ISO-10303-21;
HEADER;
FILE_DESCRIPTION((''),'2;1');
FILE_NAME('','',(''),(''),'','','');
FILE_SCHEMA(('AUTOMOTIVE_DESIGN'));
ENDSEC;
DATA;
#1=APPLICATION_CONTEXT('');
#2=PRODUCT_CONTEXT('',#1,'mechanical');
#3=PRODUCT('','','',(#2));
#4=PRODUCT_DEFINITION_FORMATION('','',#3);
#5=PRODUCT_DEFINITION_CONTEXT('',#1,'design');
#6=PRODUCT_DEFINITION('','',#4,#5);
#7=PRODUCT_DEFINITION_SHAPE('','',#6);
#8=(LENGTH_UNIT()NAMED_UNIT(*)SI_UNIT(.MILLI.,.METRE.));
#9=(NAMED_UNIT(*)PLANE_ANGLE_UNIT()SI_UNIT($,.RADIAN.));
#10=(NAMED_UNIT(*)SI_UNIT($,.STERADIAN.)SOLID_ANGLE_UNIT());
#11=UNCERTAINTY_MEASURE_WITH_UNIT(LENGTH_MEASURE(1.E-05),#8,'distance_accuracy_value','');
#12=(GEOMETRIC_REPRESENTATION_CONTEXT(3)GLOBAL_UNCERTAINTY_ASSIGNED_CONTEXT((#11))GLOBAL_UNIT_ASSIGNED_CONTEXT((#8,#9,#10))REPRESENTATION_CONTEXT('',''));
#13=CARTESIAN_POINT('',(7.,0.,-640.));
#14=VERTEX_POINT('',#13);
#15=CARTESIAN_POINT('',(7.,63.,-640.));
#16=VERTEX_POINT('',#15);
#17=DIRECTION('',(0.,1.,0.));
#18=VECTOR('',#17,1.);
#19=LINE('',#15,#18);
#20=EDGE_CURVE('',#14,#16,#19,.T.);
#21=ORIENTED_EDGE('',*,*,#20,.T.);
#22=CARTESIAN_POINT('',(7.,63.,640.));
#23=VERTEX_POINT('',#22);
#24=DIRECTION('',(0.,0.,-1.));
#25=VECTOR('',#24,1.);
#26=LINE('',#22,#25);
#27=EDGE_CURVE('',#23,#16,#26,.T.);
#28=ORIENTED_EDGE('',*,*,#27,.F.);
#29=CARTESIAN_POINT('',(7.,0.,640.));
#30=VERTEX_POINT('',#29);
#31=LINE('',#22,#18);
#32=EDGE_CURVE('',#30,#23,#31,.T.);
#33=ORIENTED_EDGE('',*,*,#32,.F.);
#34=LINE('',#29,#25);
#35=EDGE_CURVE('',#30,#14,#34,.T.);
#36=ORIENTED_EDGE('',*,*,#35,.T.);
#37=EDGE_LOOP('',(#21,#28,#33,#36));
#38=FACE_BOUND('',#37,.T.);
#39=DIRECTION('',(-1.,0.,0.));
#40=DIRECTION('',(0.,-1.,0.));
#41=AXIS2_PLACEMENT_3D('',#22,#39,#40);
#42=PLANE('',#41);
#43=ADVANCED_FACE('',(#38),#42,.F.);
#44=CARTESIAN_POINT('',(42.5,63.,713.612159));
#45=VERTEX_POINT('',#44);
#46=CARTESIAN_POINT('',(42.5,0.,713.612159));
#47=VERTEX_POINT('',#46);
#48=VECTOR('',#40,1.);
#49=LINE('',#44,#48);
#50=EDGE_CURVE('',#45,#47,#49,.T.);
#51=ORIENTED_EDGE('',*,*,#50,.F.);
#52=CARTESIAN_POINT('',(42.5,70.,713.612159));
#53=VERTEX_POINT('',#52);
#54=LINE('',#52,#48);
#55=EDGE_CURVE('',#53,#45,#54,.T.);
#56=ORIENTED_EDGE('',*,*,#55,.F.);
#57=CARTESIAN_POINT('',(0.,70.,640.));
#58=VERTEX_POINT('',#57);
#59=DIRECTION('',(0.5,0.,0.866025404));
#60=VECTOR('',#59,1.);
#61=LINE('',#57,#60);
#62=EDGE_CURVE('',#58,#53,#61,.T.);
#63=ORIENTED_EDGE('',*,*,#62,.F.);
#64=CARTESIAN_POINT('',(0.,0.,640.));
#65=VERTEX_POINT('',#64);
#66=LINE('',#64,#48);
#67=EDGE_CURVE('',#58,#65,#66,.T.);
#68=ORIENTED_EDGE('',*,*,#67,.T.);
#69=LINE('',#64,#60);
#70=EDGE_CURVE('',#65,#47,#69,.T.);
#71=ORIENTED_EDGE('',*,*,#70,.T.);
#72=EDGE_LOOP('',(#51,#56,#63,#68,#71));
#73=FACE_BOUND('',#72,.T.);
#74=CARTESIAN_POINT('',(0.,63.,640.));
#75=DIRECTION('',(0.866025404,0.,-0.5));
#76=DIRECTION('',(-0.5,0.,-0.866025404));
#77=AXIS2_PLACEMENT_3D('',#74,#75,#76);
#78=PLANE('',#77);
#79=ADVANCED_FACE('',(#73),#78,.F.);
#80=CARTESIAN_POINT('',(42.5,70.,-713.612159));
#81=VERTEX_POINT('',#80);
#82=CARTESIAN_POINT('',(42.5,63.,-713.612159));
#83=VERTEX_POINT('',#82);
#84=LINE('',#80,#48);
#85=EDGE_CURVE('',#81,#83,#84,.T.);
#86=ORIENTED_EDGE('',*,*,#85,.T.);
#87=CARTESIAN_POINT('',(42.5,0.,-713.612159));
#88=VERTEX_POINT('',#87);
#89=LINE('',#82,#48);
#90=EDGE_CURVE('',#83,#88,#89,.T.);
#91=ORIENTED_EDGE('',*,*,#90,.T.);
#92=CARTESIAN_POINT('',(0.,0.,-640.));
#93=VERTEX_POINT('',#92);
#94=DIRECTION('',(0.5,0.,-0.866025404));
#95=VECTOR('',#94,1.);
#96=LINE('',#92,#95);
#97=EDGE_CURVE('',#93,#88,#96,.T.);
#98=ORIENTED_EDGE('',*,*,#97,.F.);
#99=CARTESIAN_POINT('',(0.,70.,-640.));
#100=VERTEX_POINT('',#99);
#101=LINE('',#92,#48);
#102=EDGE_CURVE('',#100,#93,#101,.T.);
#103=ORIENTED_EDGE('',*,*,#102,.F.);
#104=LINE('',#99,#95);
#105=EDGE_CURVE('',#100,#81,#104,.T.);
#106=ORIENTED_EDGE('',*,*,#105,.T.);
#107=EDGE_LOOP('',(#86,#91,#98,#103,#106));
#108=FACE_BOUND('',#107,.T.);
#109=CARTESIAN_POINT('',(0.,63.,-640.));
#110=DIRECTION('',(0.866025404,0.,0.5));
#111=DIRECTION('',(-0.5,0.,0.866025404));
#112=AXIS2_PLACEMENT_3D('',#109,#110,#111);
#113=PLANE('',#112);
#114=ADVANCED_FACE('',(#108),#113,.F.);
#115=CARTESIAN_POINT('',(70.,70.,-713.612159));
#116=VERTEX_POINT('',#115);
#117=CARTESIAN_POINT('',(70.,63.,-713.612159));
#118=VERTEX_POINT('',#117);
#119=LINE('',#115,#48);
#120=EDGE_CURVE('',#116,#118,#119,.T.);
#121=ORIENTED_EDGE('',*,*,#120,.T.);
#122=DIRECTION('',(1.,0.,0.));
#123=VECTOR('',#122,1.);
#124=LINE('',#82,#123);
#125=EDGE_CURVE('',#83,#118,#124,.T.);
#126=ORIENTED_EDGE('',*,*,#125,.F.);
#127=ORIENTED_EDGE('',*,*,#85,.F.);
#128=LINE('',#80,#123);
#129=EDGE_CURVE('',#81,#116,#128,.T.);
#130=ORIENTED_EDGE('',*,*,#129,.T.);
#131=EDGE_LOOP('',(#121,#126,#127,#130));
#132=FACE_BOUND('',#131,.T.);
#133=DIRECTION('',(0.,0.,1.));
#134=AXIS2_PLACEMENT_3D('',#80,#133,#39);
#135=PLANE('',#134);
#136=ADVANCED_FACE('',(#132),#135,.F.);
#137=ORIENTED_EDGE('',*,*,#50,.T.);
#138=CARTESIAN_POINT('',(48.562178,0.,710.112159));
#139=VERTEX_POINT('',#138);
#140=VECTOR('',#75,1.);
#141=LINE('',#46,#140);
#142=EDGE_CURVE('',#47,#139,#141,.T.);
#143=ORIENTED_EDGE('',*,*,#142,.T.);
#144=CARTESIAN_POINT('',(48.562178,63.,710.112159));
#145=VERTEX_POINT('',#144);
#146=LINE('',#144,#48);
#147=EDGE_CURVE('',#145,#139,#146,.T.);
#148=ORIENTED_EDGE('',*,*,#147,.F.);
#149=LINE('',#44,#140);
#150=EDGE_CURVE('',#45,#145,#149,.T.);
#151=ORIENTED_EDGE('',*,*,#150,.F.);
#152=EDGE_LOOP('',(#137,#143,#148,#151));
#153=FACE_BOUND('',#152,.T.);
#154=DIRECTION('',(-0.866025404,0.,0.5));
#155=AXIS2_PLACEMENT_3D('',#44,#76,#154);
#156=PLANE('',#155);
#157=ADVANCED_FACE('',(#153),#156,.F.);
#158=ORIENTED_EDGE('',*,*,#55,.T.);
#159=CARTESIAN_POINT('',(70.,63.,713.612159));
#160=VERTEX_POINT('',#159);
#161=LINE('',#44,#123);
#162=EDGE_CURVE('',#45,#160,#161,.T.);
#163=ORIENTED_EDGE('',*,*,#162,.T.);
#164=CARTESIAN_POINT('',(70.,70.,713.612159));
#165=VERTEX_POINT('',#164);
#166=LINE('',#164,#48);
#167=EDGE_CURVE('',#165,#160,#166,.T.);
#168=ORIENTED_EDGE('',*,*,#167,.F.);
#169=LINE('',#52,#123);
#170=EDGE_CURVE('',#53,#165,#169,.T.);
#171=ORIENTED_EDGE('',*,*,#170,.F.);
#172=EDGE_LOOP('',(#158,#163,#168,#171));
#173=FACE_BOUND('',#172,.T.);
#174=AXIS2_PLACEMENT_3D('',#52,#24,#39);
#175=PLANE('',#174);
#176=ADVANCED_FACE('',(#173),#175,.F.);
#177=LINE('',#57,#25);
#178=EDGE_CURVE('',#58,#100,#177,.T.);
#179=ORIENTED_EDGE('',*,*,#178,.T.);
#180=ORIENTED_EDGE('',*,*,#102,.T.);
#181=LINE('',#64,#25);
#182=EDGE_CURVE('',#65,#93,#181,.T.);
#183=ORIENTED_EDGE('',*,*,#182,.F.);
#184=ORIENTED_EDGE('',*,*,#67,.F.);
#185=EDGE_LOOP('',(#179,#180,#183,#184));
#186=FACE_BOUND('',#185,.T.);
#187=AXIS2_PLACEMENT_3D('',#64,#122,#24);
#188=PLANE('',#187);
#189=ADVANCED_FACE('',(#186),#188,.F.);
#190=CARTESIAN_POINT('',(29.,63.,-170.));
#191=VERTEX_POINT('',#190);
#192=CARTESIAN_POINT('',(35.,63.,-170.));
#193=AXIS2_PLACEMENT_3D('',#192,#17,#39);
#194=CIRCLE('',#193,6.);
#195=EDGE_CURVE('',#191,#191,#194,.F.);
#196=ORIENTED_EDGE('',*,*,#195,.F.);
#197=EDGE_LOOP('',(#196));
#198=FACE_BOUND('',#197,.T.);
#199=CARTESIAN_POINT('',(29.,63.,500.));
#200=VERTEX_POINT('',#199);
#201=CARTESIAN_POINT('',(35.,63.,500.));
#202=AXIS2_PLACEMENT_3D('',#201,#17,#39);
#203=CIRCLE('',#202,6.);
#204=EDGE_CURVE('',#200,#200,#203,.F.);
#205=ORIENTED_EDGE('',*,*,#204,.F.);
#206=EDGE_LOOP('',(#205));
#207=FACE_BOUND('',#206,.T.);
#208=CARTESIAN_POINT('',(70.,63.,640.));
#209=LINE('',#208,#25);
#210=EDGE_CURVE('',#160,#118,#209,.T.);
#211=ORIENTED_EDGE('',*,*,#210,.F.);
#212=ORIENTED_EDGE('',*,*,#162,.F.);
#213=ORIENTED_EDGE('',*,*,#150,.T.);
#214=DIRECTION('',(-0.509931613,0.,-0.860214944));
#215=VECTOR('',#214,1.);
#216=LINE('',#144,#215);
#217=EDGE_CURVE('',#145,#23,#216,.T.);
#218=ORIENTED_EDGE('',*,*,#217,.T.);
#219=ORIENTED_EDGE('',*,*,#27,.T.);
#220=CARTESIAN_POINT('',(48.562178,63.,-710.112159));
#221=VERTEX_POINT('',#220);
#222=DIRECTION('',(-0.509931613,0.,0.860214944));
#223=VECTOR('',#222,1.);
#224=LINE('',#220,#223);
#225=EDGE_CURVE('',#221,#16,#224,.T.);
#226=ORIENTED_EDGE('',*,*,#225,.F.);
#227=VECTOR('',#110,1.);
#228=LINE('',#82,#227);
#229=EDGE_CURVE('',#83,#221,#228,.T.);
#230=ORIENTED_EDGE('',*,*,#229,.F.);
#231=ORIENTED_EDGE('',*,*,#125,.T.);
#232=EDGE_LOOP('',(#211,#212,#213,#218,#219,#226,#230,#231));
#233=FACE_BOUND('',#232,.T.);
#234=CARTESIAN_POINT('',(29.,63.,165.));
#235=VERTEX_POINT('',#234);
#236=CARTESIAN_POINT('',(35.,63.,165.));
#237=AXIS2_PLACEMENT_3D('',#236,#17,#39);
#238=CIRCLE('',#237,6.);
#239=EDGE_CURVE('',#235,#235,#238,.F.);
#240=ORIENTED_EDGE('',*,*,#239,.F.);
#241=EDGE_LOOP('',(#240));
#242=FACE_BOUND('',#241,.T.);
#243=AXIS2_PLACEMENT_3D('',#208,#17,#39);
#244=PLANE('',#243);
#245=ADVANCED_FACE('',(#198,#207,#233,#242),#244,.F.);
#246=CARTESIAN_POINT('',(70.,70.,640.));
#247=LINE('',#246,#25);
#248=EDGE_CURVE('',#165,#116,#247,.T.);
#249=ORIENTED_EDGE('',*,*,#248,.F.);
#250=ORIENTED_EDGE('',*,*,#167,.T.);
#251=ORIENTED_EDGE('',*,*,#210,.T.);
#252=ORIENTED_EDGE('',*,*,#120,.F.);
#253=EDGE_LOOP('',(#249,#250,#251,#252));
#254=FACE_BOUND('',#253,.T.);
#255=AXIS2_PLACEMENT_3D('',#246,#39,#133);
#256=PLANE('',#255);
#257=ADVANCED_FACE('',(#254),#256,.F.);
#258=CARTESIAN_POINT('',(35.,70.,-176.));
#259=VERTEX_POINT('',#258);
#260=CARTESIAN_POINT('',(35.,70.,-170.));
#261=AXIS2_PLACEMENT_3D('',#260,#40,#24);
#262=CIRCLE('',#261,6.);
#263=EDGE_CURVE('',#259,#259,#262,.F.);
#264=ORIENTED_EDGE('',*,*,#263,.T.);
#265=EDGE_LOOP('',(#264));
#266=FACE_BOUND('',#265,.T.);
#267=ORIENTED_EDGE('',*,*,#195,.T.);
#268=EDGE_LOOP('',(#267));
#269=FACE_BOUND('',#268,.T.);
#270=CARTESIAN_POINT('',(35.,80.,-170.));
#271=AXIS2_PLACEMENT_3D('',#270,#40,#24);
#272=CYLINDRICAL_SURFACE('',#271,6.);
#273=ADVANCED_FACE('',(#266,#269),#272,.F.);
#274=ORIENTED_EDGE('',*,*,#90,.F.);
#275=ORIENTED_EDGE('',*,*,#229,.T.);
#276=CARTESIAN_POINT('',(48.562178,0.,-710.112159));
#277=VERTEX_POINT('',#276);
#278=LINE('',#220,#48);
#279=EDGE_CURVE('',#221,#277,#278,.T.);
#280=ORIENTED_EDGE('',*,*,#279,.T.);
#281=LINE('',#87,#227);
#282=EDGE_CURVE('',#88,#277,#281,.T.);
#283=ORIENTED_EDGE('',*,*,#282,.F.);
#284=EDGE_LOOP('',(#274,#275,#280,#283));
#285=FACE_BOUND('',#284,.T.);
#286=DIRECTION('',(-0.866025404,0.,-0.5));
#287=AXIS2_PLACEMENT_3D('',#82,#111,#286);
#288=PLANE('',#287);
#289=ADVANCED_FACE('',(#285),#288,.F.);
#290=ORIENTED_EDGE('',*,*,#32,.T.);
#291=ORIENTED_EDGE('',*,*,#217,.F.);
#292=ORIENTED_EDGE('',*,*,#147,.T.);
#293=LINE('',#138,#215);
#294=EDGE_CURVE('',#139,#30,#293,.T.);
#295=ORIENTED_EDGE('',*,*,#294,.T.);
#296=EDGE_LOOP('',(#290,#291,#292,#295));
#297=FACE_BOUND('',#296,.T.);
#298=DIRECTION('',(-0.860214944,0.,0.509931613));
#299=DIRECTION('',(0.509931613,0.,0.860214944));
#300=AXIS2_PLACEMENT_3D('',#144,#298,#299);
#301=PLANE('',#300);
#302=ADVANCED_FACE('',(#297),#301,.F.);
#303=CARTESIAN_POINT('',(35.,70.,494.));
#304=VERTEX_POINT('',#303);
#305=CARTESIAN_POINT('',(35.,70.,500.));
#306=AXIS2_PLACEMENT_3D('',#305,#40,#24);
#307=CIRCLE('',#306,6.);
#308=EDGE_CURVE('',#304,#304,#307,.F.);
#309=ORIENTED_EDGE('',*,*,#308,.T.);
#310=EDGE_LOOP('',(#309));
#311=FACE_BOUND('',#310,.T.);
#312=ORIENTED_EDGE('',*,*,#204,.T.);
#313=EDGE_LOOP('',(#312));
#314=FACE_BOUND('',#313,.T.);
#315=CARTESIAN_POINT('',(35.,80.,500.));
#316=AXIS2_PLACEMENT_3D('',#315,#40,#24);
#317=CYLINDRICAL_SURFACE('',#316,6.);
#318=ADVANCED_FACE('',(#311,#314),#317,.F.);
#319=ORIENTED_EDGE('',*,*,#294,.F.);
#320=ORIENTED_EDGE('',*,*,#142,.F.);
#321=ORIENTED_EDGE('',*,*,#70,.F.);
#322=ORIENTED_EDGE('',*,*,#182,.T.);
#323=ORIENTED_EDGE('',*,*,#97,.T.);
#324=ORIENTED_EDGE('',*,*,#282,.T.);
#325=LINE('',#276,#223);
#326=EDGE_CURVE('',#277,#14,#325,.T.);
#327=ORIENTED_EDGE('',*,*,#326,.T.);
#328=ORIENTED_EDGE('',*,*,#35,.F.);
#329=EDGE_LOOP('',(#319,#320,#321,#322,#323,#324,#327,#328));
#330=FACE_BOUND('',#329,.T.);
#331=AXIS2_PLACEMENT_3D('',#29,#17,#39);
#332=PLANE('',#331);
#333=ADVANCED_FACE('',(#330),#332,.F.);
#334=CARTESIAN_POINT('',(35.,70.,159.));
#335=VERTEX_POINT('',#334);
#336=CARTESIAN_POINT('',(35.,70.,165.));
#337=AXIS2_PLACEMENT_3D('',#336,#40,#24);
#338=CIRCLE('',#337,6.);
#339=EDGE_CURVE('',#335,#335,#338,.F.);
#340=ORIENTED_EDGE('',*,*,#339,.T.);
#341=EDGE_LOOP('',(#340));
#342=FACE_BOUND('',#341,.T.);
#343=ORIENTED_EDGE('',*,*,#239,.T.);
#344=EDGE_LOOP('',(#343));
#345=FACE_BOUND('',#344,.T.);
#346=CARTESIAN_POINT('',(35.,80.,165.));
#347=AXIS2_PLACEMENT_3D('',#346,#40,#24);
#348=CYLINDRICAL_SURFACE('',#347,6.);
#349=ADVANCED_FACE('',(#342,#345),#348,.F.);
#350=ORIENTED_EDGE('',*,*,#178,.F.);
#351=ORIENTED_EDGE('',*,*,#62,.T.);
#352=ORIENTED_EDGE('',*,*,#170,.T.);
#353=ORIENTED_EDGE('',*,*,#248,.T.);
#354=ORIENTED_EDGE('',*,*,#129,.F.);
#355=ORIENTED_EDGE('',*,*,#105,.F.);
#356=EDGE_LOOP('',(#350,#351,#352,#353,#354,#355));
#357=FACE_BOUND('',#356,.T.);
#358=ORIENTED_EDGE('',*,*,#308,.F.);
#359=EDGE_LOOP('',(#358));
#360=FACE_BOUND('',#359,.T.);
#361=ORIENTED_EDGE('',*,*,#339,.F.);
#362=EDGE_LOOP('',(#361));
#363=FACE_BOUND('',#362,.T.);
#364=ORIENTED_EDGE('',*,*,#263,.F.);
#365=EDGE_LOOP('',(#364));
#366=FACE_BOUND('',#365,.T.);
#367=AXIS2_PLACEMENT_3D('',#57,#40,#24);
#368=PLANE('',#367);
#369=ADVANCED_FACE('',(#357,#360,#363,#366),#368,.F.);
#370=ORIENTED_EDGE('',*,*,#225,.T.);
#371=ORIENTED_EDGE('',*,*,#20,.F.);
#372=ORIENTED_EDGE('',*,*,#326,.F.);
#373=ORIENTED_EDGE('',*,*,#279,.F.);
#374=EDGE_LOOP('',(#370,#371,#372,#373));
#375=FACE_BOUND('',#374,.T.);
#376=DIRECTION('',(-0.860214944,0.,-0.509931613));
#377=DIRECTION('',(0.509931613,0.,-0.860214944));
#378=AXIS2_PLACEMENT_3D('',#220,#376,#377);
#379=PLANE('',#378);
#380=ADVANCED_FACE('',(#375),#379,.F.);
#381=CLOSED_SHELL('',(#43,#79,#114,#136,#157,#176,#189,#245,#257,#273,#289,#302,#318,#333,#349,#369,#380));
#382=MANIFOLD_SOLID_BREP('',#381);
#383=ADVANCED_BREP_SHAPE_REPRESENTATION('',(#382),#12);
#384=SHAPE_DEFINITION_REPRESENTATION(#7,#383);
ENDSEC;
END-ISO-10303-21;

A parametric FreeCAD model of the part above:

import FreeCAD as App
import Part
import Sketcher
from FreeCAD import Vector
Q = App.Units.Quantity


def add_polygon(sketch, points):
    """Adds a closed chain of lines whose ends are joined by coincident constraints."""
    first, n = sketch.GeometryCount, len(points)
    for a, b in zip(points, points[1:] + points[:1]):
        sketch.addGeometry(Part.LineSegment(App.Vector(*a, 0), App.Vector(*b, 0)), False)
    for i in range(n):
        sketch.addConstraint(Sketcher.Constraint("Coincident", first + i, 2, first + (i + 1) % n, 1))

doc = App.newDocument("Part")
body = doc.addObject("PartDesign::Body", "Body")

# Sketch on XY plane
sketch1 = body.newObject("Sketcher::SketchObject", "Sketch")
sketch1.AttachmentSupport = (doc.getObject("XY_Plane"), [""])
sketch1.MapMode = "FlatFace"
add_polygon(sketch1, [(0, 70), (0, 0), (7, 0), (7, 63), (70, 63), (70, 70)])  # lines 0-5
sketch1.addConstraint([
    Sketcher.Constraint("Vertical", 0),
    Sketcher.Constraint("Horizontal", 1),
    Sketcher.Constraint("Vertical", 2),
    Sketcher.Constraint("Horizontal", 3),
    Sketcher.Constraint("Vertical", 4),
    Sketcher.Constraint("Horizontal", 5),
    Sketcher.Constraint("Coincident", 0, 2, -1, 1),
    Sketcher.Constraint("Equal", 5, 0),
    Sketcher.Constraint("Equal", 3, 2),
    Sketcher.Constraint("DistanceX", 1, 1, 1, 2, Q("7 mm")),
    Sketcher.Constraint("DistanceX", 3, 1, 3, 2, Q("63 mm")),
])
pad1 = body.newObject("PartDesign::Pad", "Pad")
pad1.Profile = sketch1
pad1.Length = 640

# Sketch on XZ plane
sketch2 = body.newObject("Sketcher::SketchObject", "Sketch001")
sketch2.AttachmentSupport = (doc.getObject("XZ_Plane"), [""])
sketch2.MapMode = "FlatFace"
add_polygon(sketch2, [(0, 640), (42, 714), (49, 710), (7, 640)])  # lines 0-3
sketch2.addConstraint([
    Sketcher.Constraint("Horizontal", 3),
    Sketcher.Constraint("PointOnObject", 3, 2, -2),
    Sketcher.Constraint("Perpendicular", 0, 1),
    Sketcher.Constraint("DistanceX", 3, 2, 3, 1, Q("7 mm")),
    Sketcher.Constraint("Angle", 0, Q("60 deg")),
    Sketcher.Constraint("Distance", 0, Q("85 mm")),
    Sketcher.Constraint("Distance", 1, Q("7 mm")),
    Sketcher.Constraint("DistanceY", -1, 1, 2, 2, Q("640 mm")),
])
pad2 = body.newObject("PartDesign::Pad", "Pad001")
pad2.Profile = sketch2
pad2.Length = 63
pad2.Reversed = True

# Sketch on XZ plane
sketch3 = body.newObject("Sketcher::SketchObject", "Sketch002")
sketch3.AttachmentSupport = (doc.getObject("XZ_Plane"), [""])
sketch3.MapMode = "FlatFace"
sketch3.AttachmentOffset = App.Placement(Vector(0, 0, -63), App.Rotation())
add_polygon(sketch3, [(70, 640), (0, 640), (42, 714), (70, 714)])  # lines 0-3
sketch3.addConstraint([
    Sketcher.Constraint("Horizontal", 0),
    Sketcher.Constraint("Horizontal", 2),
    Sketcher.Constraint("Vertical", 3),
    Sketcher.Constraint("PointOnObject", 0, 2, -2),
    Sketcher.Constraint("DistanceX", 0, 2, 0, 1, Q("70 mm")),
    Sketcher.Constraint("Angle", 1, Q("60 deg")),
    Sketcher.Constraint("Distance", 1, Q("85 mm")),
    Sketcher.Constraint("DistanceY", -1, 1, 0, 2, Q("640 mm")),
])
pad3 = body.newObject("PartDesign::Pad", "Pad002")
pad3.Profile = sketch3
pad3.Length = 7
pad3.Reversed = True
body2 = doc.addObject("PartDesign::Body", "Body001")
doc.recompute()

body2.BaseFeature = body
doc.recompute()

mirroring = doc.addObject("Part::Mirroring", "Mirroring")
mirroring.Source = body
mirroring.Base = Vector(0, 0, 0)
mirroring.Normal = Vector(0, 0, 1)
body3 = doc.addObject("PartDesign::Body", "Body002")
body3.BaseFeature = mirroring
boolean = body2.newObject("PartDesign::Boolean", "Boolean")
boolean.Type = "Fuse"
boolean.addObjects([body3])
doc.recompute()

# Sketch on XZ plane
sketch4 = body2.newObject("Sketcher::SketchObject", "Sketch003")
sketch4.AttachmentSupport = (doc.getObject("XZ_Plane001"), [""])
sketch4.MapMode = "FlatFace"
sketch4.AttachmentOffset = App.Placement(Vector(0, 0, -70), App.Rotation())
sketch4.addGeometry([
    Part.Circle(Vector(35, 500, 0), Vector(0, 0, 1), 6),
    Part.Circle(Vector(35, 165, 0), Vector(0, 0, 1), 6),
    Part.Circle(Vector(35, -170, 0), Vector(0, 0, 1), 6),
], False)
sketch4.addConstraint([
    Sketcher.Constraint("Equal", 0, 1),
    Sketcher.Constraint("Equal", 1, 2),
    Sketcher.Constraint("Vertical", 0, 3, 1, 3),
    Sketcher.Constraint("Vertical", 1, 3, 2, 3),
    Sketcher.Constraint("Diameter", 0, Q("12 mm")),
    Sketcher.Constraint("DistanceX", -1, 1, 0, 3, Q("35 mm")),
    Sketcher.Constraint("DistanceY", -1, 1, 0, 3, Q("500 mm")),
    Sketcher.Constraint("DistanceY", -1, 1, 1, 3, Q("165 mm")),
    Sketcher.Constraint("DistanceY", 2, 3, -1, 1, Q("170 mm")),
])
pocket1 = body2.newObject("PartDesign::Pocket", "Pocket")
pocket1.Profile = sketch4
pocket1.Type = "ThroughAll"
pocket1.Midplane = True
mirroring.Visibility = False

doc.recompute()
